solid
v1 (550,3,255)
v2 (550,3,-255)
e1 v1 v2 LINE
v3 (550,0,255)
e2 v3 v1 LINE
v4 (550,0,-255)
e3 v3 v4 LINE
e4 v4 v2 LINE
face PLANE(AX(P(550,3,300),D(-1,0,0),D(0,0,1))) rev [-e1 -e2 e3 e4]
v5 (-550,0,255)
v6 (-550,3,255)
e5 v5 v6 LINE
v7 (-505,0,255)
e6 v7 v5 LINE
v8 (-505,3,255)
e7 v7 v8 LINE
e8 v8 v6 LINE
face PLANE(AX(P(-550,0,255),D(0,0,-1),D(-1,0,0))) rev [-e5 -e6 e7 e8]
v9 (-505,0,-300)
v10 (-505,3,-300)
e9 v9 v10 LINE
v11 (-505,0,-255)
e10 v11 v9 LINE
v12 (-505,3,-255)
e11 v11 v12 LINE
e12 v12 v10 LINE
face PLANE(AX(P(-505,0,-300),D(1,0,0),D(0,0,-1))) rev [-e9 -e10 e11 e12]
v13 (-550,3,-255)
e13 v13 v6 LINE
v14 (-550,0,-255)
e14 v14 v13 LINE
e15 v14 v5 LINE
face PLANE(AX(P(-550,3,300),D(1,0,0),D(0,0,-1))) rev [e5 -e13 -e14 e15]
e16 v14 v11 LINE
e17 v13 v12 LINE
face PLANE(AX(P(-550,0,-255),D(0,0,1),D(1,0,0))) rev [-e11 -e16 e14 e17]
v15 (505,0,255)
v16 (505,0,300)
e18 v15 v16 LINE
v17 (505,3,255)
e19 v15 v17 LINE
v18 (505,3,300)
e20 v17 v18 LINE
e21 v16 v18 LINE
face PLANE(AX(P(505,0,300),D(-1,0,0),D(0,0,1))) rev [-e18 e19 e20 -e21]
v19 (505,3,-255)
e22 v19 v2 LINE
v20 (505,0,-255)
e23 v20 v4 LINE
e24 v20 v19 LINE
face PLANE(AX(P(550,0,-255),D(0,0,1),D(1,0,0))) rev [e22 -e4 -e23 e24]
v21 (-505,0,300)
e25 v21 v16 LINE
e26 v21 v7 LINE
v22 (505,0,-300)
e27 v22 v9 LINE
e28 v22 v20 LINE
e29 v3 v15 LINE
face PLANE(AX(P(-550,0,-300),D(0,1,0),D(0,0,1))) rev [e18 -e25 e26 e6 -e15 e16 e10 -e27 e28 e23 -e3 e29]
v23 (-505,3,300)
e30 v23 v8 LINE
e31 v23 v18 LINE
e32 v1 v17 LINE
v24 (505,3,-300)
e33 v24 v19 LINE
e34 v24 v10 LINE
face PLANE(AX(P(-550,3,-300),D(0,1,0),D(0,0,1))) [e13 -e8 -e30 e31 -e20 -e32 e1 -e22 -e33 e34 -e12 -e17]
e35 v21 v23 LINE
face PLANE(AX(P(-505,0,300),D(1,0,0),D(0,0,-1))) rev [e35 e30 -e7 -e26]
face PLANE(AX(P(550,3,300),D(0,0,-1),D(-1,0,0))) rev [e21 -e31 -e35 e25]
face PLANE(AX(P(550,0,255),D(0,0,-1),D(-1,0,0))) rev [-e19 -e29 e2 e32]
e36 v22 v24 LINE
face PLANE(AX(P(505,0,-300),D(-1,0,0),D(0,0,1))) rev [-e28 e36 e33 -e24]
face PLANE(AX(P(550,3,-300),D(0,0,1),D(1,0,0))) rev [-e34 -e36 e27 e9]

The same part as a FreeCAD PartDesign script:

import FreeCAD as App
import Part
import Sketcher
Q = App.Units.Quantity


def add_polygon(sketch, points):
    """Adds a closed chain of lines whose ends are joined by coincident constraints."""
    first, n = sketch.GeometryCount, len(points)
    for a, b in zip(points, points[1:] + points[:1]):
        sketch.addGeometry(Part.LineSegment(App.Vector(*a, 0), App.Vector(*b, 0)), False)
    for i in range(n):
        sketch.addConstraint(Sketcher.Constraint("Coincident", first + i, 2, first + (i + 1) % n, 1))

doc = App.newDocument("Part")
params = doc.addObject("Spreadsheet::Sheet", "Params")
for row, (alias, value) in enumerate([
    ("sketch1_width", "1100 mm"),
    ("sketch1_height", "600 mm"),
    ("pad1_length", "3 mm"),
    ("sketch2_width", "45 mm"),
    ("pocket1_length", "3 mm"),
], start=1):
    params.set(f"A{row}", alias)
    params.set(f"B{row}", "=" + value)
    params.setAlias(f"B{row}", alias)

body = doc.addObject("PartDesign::Body", "Body")

sketch1 = body.newObject("Sketcher::SketchObject", "Sketch")
sketch1.AttachmentSupport = (doc.getObject("XZ_Plane"), [""])
sketch1.MapMode = "FlatFace"
add_polygon(sketch1, [(-550, -300), (-550, 300), (550, 300), (550, -300)])
sketch1.addConstraint([
    Sketcher.Constraint("Vertical", 0),
    Sketcher.Constraint("Horizontal", 1),
    Sketcher.Constraint("Vertical", 2),
    Sketcher.Constraint("Horizontal", 3),
    Sketcher.Constraint("Symmetric", 0, 2, 2, 2, -1, 1),
    Sketcher.Constraint("DistanceX", 1, 1, 1, 2, Q("1100 mm")),
    Sketcher.Constraint("DistanceY", 0, 1, 0, 2, Q("600 mm")),
])
sketch1.setExpression("Constraints[9]", "Params.sketch1_width")
sketch1.setExpression("Constraints[10]", "Params.sketch1_height")
pad1 = body.newObject("PartDesign::Pad", "Pad")
pad1.Profile = sketch1
pad1.setExpression("Length", "Params.pad1_length")
pad1.Reversed = True

sketch2 = body.newObject("Sketcher::SketchObject", "Sketch001")
sketch2.AttachmentSupport = (doc.getObject("XZ_Plane"), [""])
sketch2.MapMode = "FlatFace"
sketch2.AttachmentOffset = App.Placement(App.Vector(0, 0, -3), App.Rotation())
add_polygon(sketch2, [(-550, -300), (-550, -255), (-505, -255), (-505, -300)])
add_polygon(sketch2, [(505, -300), (505, -255), (550, -255), (550, -300)])
add_polygon(sketch2, [(-550, 255), (-550, 300), (-505, 300), (-505, 255)])
add_polygon(sketch2, [(505, 255), (505, 300), (550, 300), (550, 255)])
sketch2.addConstraint([
    Sketcher.Constraint("Vertical", 0),
    Sketcher.Constraint("Horizontal", 1),
    Sketcher.Constraint("Vertical", 2),
    Sketcher.Constraint("Horizontal", 3),
    Sketcher.Constraint("Vertical", 4),
    Sketcher.Constraint("Horizontal", 5),
    Sketcher.Constraint("Vertical", 6),
    Sketcher.Constraint("Horizontal", 7),
    Sketcher.Constraint("Vertical", 8),
    Sketcher.Constraint("Horizontal", 9),
    Sketcher.Constraint("Vertical", 10),
    Sketcher.Constraint("Horizontal", 11),
    Sketcher.Constraint("Vertical", 12),
    Sketcher.Constraint("Horizontal", 13),
    Sketcher.Constraint("Vertical", 14),
    Sketcher.Constraint("Horizontal", 15),
    Sketcher.Constraint("Symmetric", 6, 2, 8, 2, -1, 1),
    Sketcher.Constraint("Symmetric", 4, 2, 10, 2, -1, 1),
    Sketcher.Constraint("Symmetric", 2, 2, 12, 2, -1, 1),
    Sketcher.Constraint("Symmetric", 0, 2, 14, 2, -1, 1),
    Sketcher.Constraint("Symmetric", 1, 2, 4, 2, -2),
    Sketcher.Constraint("Symmetric", 3, 2, 6, 2, -2),
    Sketcher.Constraint("Equal", 15, 0),
    Sketcher.Constraint("DistanceX", 1, 1, 1, 2, Q("45 mm")),
    Sketcher.Constraint("DistanceX", 0, 2, -1, 1, Q("550 mm")),
    Sketcher.Constraint("DistanceY", 0, 2, -1, 1, Q("255 mm")),
])
sketch2.setExpression("Constraints[39]", "Params.sketch2_width")
pocket1 = body.newObject("PartDesign::Pocket", "Pocket")
pocket1.Profile = sketch2
pocket1.setExpression("Length", "Params.pocket1_length")
pocket1.Reversed = True

doc.recompute()
